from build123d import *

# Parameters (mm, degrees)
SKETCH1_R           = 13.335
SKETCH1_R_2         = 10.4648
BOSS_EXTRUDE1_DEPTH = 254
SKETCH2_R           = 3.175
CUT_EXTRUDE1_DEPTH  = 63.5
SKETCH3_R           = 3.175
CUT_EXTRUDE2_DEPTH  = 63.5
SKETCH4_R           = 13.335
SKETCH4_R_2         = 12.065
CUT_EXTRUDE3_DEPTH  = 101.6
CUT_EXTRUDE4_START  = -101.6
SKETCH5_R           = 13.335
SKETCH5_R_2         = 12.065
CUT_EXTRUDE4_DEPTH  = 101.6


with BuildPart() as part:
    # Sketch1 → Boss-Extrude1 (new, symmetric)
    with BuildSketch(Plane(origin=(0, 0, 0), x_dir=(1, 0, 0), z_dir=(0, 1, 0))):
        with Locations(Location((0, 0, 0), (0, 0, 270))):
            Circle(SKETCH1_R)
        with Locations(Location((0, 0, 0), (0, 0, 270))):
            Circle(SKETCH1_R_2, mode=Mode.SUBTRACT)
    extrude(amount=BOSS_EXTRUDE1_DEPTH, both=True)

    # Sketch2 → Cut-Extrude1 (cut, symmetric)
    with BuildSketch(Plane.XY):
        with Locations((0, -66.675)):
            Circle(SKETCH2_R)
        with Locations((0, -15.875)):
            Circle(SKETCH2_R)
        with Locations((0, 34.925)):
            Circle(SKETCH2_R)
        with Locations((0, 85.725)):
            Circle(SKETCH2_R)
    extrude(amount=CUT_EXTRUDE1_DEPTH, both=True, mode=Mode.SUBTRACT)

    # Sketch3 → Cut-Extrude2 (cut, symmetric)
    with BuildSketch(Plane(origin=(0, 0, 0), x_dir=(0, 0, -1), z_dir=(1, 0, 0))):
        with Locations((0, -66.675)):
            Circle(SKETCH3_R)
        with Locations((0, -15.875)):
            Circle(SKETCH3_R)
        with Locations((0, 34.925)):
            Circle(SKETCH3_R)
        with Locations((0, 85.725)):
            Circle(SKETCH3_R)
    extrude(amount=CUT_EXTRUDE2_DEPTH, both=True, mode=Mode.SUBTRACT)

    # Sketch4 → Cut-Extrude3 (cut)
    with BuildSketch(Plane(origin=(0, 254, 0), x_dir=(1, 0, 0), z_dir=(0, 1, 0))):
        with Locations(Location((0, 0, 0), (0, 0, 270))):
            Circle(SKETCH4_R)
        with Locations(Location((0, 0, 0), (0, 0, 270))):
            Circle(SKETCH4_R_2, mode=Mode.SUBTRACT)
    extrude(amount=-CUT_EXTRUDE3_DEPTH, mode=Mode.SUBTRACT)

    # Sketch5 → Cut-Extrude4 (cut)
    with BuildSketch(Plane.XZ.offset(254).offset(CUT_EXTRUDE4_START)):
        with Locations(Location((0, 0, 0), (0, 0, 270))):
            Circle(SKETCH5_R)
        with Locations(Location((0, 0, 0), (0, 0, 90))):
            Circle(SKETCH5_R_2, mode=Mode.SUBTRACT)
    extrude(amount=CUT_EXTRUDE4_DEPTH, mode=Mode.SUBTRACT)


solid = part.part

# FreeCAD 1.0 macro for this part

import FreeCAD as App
import Part
import Sketcher
Q = App.Units.Quantity

doc = App.newDocument("Part")
body = doc.addObject("PartDesign::Body", "Body")

# Sketch on XZ plane
sketch1 = body.newObject("Sketcher::SketchObject", "Sketch")
sketch1.AttachmentSupport = (doc.getObject("XZ_Plane"), [""])
sketch1.MapMode = "FlatFace"
sketch1.addGeometry([
    Part.Circle(App.Vector(0, 0, 0), App.Vector(0, 0, 1), 13.335),
    Part.Circle(App.Vector(0, 0, 0), App.Vector(0, 0, 1), 10.4648),
], False)
sketch1.addConstraint([
    Sketcher.Constraint("Coincident", 0, 3, -1, 1),
    Sketcher.Constraint("Coincident", 1, 3, -1, 1),
    Sketcher.Constraint("Diameter", 0, Q("1.05 in")),
    Sketcher.Constraint("Diameter", 1, Q("0.824 in")),
])
pad1 = body.newObject("PartDesign::Pad", "Pad")
pad1.Profile = sketch1
pad1.Length = Q("20 in")
pad1.Midplane = True

# Sketch on XY plane
sketch2 = body.newObject("Sketcher::SketchObject", "Sketch001")
sketch2.AttachmentSupport = (doc.getObject("XY_Plane"), [""])
sketch2.MapMode = "FlatFace"
sketch2.addGeometry([
    Part.Circle(App.Vector(0, -66.675, 0), App.Vector(0, 0, 1), 3.175),
    Part.Circle(App.Vector(0, -15.875, 0), App.Vector(0, 0, 1), 3.175),
    Part.Circle(App.Vector(0, 34.925, 0), App.Vector(0, 0, 1), 3.175),
    Part.Circle(App.Vector(0, 85.725, 0), App.Vector(0, 0, 1), 3.175),
], False)
sketch2.addConstraint([
    Sketcher.Constraint("Equal", 0, 1),
    Sketcher.Constraint("Equal", 1, 2),
    Sketcher.Constraint("Equal", 2, 3),
    Sketcher.Constraint("PointOnObject", 0, 3, -2),
    Sketcher.Constraint("PointOnObject", 1, 3, -2),
    Sketcher.Constraint("PointOnObject", 2, 3, -2),
    Sketcher.Constraint("PointOnObject", 3, 3, -2),
    Sketcher.Constraint("Diameter", 0, Q("0.25 in")),
    Sketcher.Constraint("DistanceY", 0, 3, 1, 3, Q("2 in")),
    Sketcher.Constraint("DistanceY", 1, 3, 2, 3, Q("2 in")),
    Sketcher.Constraint("DistanceY", 2, 3, 3, 3, Q("2 in")),
    Sketcher.Constraint("DistanceY", 0, 3, -1, 1, Q("2.625 in")),
])
pocket1 = body.newObject("PartDesign::Pocket", "Pocket")
pocket1.Profile = sketch2
pocket1.Length = Q("5 in")
pocket1.Midplane = True

# Sketch on YZ plane
sketch3 = body.newObject("Sketcher::SketchObject", "Sketch002")
sketch3.AttachmentSupport = (doc.getObject("YZ_Plane"), [""])
sketch3.MapMode = "FlatFace"
sketch3.addGeometry([
    Part.Circle(App.Vector(-66.675, 0, 0), App.Vector(0, 0, 1), 3.175),
    Part.Circle(App.Vector(-15.875, 0, 0), App.Vector(0, 0, 1), 3.175),
    Part.Circle(App.Vector(34.925, 0, 0), App.Vector(0, 0, 1), 3.175),
    Part.Circle(App.Vector(85.725, 0, 0), App.Vector(0, 0, 1), 3.175),
], False)
sketch3.addConstraint([
    Sketcher.Constraint("Equal", 0, 1),
    Sketcher.Constraint("Equal", 1, 2),
    Sketcher.Constraint("Equal", 2, 3),
    Sketcher.Constraint("PointOnObject", 0, 3, -1),
    Sketcher.Constraint("PointOnObject", 1, 3, -1),
    Sketcher.Constraint("PointOnObject", 2, 3, -1),
    Sketcher.Constraint("PointOnObject", 3, 3, -1),
    Sketcher.Constraint("Diameter", 0, Q("0.25 in")),
    Sketcher.Constraint("DistanceX", 0, 3, 1, 3, Q("2 in")),
    Sketcher.Constraint("DistanceX", 1, 3, 2, 3, Q("2 in")),
    Sketcher.Constraint("DistanceX", 2, 3, 3, 3, Q("2 in")),
    Sketcher.Constraint("DistanceX", 0, 3, -1, 1, Q("2.625 in")),
])
pocket2 = body.newObject("PartDesign::Pocket", "Pocket001")
pocket2.Profile = sketch3
pocket2.Length = Q("5 in")
pocket2.Midplane = True

# Sketch on XZ plane
sketch4 = body.newObject("Sketcher::SketchObject", "Sketch003")
sketch4.AttachmentSupport = (doc.getObject("XZ_Plane"), [""])
sketch4.MapMode = "FlatFace"
sketch4.AttachmentOffset = App.Placement(App.Vector(0, 0, -10 * 25.4), App.Rotation())
sketch4.addGeometry([
    Part.Circle(App.Vector(0, 0, 0), App.Vector(0, 0, 1), 13.335),
    Part.Circle(App.Vector(0, 0, 0), App.Vector(0, 0, 1), 12.065),
], False)
sketch4.addConstraint([
    Sketcher.Constraint("Coincident", 0, 3, -1, 1),
    Sketcher.Constraint("Coincident", 1, 3, -1, 1),
    Sketcher.Constraint("Diameter", 0, Q("1.05 in")),
    Sketcher.Constraint("Diameter", 1, Q("0.95 in")),
])
pocket3 = body.newObject("PartDesign::Pocket", "Pocket002")
pocket3.Profile = sketch4
pocket3.Length = Q("4 in")
pocket3.Reversed = True

# Sketch on XZ plane
sketch5 = body.newObject("Sketcher::SketchObject", "Sketch004")
sketch5.AttachmentSupport = (doc.getObject("XZ_Plane"), [""])
sketch5.MapMode = "FlatFace"
sketch5.AttachmentOffset = App.Placement(App.Vector(0, 0, 6 * 25.4), App.Rotation())
sketch5.addGeometry([
    Part.Circle(App.Vector(0, 0, 0), App.Vector(0, 0, 1), 13.335),
    Part.Circle(App.Vector(0, 0, 0), App.Vector(0, 0, 1), 12.065),
], False)
sketch5.addConstraint([
    Sketcher.Constraint("Coincident", 0, 3, -1, 1),
    Sketcher.Constraint("Coincident", 1, 3, -1, 1),
    Sketcher.Constraint("Diameter", 0, Q("1.05 in")),
    Sketcher.Constraint("Diameter", 1, Q("0.95 in")),
])
pocket4 = body.newObject("PartDesign::Pocket", "Pocket003")
pocket4.Profile = sketch5
pocket4.Length = Q("4 in")
pocket4.Reversed = True

doc.recompute()
